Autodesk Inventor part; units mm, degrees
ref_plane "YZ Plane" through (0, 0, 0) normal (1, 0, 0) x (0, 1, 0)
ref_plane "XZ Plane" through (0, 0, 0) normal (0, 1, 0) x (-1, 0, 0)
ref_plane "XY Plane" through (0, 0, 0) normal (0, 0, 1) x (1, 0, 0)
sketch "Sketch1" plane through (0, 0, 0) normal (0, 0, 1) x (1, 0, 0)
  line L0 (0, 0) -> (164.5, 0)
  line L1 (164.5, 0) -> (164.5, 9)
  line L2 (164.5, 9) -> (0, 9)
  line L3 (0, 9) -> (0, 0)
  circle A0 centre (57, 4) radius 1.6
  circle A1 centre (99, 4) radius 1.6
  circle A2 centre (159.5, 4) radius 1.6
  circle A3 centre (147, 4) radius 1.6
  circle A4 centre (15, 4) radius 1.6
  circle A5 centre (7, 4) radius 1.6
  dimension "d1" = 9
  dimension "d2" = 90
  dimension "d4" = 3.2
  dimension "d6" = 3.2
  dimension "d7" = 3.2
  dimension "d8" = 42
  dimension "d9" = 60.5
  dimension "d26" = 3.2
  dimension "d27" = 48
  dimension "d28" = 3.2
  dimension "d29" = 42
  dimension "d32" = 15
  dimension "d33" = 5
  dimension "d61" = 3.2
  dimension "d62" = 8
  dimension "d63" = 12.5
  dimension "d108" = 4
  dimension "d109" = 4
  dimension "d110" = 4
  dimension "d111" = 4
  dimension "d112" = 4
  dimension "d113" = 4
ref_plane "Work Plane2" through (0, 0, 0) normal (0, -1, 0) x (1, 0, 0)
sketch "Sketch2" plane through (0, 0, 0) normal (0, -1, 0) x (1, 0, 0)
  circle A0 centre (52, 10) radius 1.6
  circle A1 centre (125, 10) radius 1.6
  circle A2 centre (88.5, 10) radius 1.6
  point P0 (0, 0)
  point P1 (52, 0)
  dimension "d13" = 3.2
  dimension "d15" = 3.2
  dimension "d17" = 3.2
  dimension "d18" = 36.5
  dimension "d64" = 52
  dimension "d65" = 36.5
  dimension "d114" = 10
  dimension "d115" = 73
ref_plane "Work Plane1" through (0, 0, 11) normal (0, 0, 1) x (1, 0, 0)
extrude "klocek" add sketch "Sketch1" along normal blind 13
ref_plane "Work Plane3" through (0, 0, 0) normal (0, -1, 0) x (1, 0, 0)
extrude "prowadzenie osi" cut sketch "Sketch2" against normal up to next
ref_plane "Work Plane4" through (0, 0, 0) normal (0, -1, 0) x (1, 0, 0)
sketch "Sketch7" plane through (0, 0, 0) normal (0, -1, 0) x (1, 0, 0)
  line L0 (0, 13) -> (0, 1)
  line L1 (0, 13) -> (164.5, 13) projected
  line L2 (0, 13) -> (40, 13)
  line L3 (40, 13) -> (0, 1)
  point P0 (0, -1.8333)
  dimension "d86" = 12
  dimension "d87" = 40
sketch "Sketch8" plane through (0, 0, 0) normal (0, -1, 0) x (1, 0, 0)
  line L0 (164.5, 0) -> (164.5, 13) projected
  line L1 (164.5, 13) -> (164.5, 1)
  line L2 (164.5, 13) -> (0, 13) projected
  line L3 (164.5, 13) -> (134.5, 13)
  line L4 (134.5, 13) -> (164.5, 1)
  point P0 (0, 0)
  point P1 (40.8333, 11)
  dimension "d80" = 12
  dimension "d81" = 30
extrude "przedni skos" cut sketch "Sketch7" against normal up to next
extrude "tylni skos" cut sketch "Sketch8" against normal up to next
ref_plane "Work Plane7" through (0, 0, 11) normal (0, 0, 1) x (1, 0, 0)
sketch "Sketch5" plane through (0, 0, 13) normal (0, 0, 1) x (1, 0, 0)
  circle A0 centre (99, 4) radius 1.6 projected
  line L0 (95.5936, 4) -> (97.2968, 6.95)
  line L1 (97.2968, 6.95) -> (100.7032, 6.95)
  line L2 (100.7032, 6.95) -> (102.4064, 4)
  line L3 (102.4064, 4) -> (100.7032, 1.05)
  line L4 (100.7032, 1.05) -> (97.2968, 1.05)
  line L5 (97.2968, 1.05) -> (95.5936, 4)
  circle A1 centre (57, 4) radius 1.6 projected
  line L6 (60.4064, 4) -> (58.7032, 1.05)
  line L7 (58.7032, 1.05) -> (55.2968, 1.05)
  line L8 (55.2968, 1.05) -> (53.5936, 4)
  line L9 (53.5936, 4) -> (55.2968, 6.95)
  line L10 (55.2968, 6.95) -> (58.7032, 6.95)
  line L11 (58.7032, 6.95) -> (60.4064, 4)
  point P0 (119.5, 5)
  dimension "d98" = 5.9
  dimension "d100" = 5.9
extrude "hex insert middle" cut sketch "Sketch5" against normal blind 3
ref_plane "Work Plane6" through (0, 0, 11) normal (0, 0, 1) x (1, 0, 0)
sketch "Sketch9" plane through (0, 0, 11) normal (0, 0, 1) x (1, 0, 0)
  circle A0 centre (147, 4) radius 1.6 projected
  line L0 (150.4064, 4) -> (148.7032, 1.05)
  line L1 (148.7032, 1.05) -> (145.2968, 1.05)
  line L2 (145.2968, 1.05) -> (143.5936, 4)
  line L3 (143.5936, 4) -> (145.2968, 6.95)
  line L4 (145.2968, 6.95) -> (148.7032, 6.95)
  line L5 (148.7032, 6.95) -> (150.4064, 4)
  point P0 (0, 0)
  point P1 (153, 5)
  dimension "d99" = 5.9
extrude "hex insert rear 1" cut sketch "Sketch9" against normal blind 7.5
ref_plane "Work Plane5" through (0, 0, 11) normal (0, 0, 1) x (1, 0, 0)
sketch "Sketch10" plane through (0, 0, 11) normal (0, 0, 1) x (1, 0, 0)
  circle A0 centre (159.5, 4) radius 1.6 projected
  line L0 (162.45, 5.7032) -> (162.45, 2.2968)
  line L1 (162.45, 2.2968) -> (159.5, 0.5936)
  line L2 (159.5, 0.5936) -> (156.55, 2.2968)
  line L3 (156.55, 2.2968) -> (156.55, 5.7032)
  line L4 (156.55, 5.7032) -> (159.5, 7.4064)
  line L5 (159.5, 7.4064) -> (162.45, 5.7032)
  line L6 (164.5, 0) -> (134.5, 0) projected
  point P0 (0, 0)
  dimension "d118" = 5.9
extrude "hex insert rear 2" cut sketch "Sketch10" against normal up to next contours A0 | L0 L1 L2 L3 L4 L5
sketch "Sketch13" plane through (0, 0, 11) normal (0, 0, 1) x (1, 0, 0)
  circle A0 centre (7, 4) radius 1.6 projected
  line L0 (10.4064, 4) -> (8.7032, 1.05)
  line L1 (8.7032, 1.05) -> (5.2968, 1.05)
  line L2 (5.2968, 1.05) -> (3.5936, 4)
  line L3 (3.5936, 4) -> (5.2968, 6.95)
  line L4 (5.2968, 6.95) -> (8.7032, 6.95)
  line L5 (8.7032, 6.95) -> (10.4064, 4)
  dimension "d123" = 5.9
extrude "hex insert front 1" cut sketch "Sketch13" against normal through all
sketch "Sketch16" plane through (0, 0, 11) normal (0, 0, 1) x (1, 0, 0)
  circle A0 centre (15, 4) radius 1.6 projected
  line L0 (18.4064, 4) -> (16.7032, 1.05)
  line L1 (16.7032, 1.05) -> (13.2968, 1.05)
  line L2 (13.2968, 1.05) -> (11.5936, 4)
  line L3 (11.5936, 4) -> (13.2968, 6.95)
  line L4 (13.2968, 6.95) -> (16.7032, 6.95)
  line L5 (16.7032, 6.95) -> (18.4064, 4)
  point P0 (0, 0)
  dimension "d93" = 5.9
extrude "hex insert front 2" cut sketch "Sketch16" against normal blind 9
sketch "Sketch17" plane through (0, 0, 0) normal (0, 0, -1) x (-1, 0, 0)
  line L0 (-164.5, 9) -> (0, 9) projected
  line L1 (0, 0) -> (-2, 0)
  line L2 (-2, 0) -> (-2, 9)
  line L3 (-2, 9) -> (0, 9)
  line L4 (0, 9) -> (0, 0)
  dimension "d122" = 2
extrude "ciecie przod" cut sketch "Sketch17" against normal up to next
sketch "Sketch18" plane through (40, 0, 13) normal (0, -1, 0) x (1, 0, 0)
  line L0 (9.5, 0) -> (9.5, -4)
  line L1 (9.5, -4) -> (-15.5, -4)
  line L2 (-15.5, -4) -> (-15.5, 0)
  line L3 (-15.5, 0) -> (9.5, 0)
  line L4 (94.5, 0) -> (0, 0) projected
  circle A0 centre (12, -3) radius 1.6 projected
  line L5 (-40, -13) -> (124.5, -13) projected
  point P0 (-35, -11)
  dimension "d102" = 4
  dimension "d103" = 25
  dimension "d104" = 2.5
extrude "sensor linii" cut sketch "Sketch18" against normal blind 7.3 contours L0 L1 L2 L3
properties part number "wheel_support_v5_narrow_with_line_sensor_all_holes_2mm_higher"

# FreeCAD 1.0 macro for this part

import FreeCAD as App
import Part
import Sketcher
from FreeCAD import Vector
Q = App.Units.Quantity


def add_polygon(sketch, points):
    """Adds a closed chain of lines whose ends are joined by coincident constraints."""
    first, n = sketch.GeometryCount, len(points)
    for a, b in zip(points, points[1:] + points[:1]):
        sketch.addGeometry(Part.LineSegment(App.Vector(*a, 0), App.Vector(*b, 0)), False)
    for i in range(n):
        sketch.addConstraint(Sketcher.Constraint("Coincident", first + i, 2, first + (i + 1) % n, 1))

doc = App.newDocument("Part")
body = doc.addObject("PartDesign::Body", "Body")

# Sketch on XY plane
sketch1 = doc.addObject("Sketcher::SketchObject", "Sketch")
body.addObject(sketch1)
sketch1.AttachmentSupport = (doc.XY_Plane, [""])
sketch1.MapMode = "FlatFace"
add_polygon(sketch1, [(0, 9), (0, 0), (164.5, 0), (164.5, 9)])  # lines 0-3
sketch1.addGeometry(Part.Circle(Vector(7, 4, 0), Vector(0, 0, 1), 1.6), False)  # 4
sketch1.addGeometry(Part.Circle(Vector(15, 4, 0), Vector(0, 0, 1), 1.6), False)  # 5
sketch1.addGeometry(Part.Circle(Vector(57, 4, 0), Vector(0, 0, 1), 1.6), False)  # 6
sketch1.addGeometry(Part.Circle(Vector(99, 4, 0), Vector(0, 0, 1), 1.6), False)  # 7
sketch1.addGeometry(Part.Circle(Vector(147, 4, 0), Vector(0, 0, 1), 1.6), False)  # 8
sketch1.addGeometry(Part.Circle(Vector(159.5, 4, 0), Vector(0, 0, 1), 1.6), False)  # 9
sketch1.addConstraint(Sketcher.Constraint("Vertical", 0))
sketch1.addConstraint(Sketcher.Constraint("Horizontal", 1))
sketch1.addConstraint(Sketcher.Constraint("Vertical", 2))
sketch1.addConstraint(Sketcher.Constraint("Horizontal", 3))
sketch1.addConstraint(Sketcher.Constraint("Coincident", 0, 2, -1, 1))
sketch1.addConstraint(Sketcher.Constraint("Equal", 4, 5))
sketch1.addConstraint(Sketcher.Constraint("Equal", 5, 6))
sketch1.addConstraint(Sketcher.Constraint("Equal", 6, 7))
sketch1.addConstraint(Sketcher.Constraint("Equal", 7, 8))
sketch1.addConstraint(Sketcher.Constraint("Equal", 8, 9))
sketch1.addConstraint(Sketcher.Constraint("Horizontal", 4, 3, 5, 3))
sketch1.addConstraint(Sketcher.Constraint("Horizontal", 5, 3, 6, 3))
sketch1.addConstraint(Sketcher.Constraint("Horizontal", 6, 3, 7, 3))
sketch1.addConstraint(Sketcher.Constraint("Horizontal", 7, 3, 8, 3))
sketch1.addConstraint(Sketcher.Constraint("Horizontal", 8, 3, 9, 3))
sketch1.addConstraint(Sketcher.Constraint("Diameter", 4, 3.2))
sketch1.addConstraint(Sketcher.Constraint("DistanceY", 0, 2, 0, 1, 9.0))
sketch1.addConstraint(Sketcher.Constraint("DistanceY", -1, 1, 4, 3, 4.0))
sketch1.addConstraint(Sketcher.Constraint("DistanceX", -1, 1, 5, 3, 15.0))
sketch1.addConstraint(Sketcher.Constraint("DistanceX", 4, 3, 5, 3, 8.0))
sketch1.addConstraint(Sketcher.Constraint("DistanceX", 5, 3, 6, 3, 42.0))
sketch1.addConstraint(Sketcher.Constraint("DistanceX", 6, 3, 7, 3, 42.0))
sketch1.addConstraint(Sketcher.Constraint("DistanceX", 7, 3, 8, 3, 48.0))
sketch1.addConstraint(Sketcher.Constraint("DistanceX", 9, 3, 1, 2, 5.0))
sketch1.addConstraint(Sketcher.Constraint("DistanceX", 8, 3, 9, 3, 12.5))
pad1 = doc.addObject("PartDesign::Pad", "Pad")
body.addObject(pad1)
pad1.Profile = sketch1
pad1.Length = 13

# Sketch on XZ plane
sketch2 = doc.addObject("Sketcher::SketchObject", "Sketch001")
body.addObject(sketch2)
sketch2.AttachmentSupport = (doc.XZ_Plane, [""])
sketch2.MapMode = "FlatFace"
sketch2.addGeometry(Part.Circle(Vector(52, 10, 0), Vector(0, 0, 1), 1.6), False)
sketch2.addGeometry(Part.Circle(Vector(125, 10, 0), Vector(0, 0, 1), 1.6), False)
sketch2.addGeometry(Part.Circle(Vector(88.5, 10, 0), Vector(0, 0, 1), 1.6), False)
sketch2.addConstraint(Sketcher.Constraint("Equal", 0, 1))
sketch2.addConstraint(Sketcher.Constraint("Equal", 1, 2))
sketch2.addConstraint(Sketcher.Constraint("Horizontal", 0, 3, 1, 3))
sketch2.addConstraint(Sketcher.Constraint("Horizontal", 1, 3, 2, 3))
sketch2.addConstraint(Sketcher.Constraint("Diameter", 0, 3.2))
sketch2.addConstraint(Sketcher.Constraint("DistanceX", -1, 1, 0, 3, 52.0))
sketch2.addConstraint(Sketcher.Constraint("DistanceY", -1, 1, 0, 3, 10.0))
sketch2.addConstraint(Sketcher.Constraint("DistanceX", 0, 3, 1, 3, 73.0))
sketch2.addConstraint(Sketcher.Constraint("DistanceX", 0, 3, 2, 3, 36.5))
pocket1 = doc.addObject("PartDesign::Pocket", "Pocket")
body.addObject(pocket1)
pocket1.Profile = sketch2
pocket1.Type = "UpToFirst"

# Sketch on XZ plane
sketch3 = doc.addObject("Sketcher::SketchObject", "Sketch002")
body.addObject(sketch3)
sketch3.AttachmentSupport = (doc.XZ_Plane, [""])
sketch3.MapMode = "FlatFace"
add_polygon(sketch3, [(40, 13), (0, 13), (0, 1)])  # lines 0-2
sketch3.addConstraint(Sketcher.Constraint("Horizontal", 0))
sketch3.addConstraint(Sketcher.Constraint("Vertical", 1))
sketch3.addConstraint(Sketcher.Constraint("PointOnObject", 0, 2, -2))
sketch3.addConstraint(Sketcher.Constraint("DistanceX", 0, 2, 0, 1, 40.0))
sketch3.addConstraint(Sketcher.Constraint("DistanceY", 1, 2, 1, 1, 12.0))
sketch3.addConstraint(Sketcher.Constraint("DistanceY", -1, 1, 0, 2, 13.0))
pocket2 = doc.addObject("PartDesign::Pocket", "Pocket001")
body.addObject(pocket2)
pocket2.Profile = sketch3
pocket2.Type = "UpToFirst"

# Sketch on XZ plane
sketch4 = doc.addObject("Sketcher::SketchObject", "Sketch003")
body.addObject(sketch4)
sketch4.AttachmentSupport = (doc.XZ_Plane, [""])
sketch4.MapMode = "FlatFace"
add_polygon(sketch4, [(134, 13), (164, 1), (164, 13)])  # lines 0-2
sketch4.addConstraint(Sketcher.Constraint("Vertical", 1))
sketch4.addConstraint(Sketcher.Constraint("Horizontal", 2))
sketch4.addConstraint(Sketcher.Constraint("DistanceX", 2, 2, 2, 1, 30.0))
sketch4.addConstraint(Sketcher.Constraint("DistanceY", 1, 1, 1, 2, 12.0))
sketch4.addConstraint(Sketcher.Constraint("DistanceY", -1, 1, 0, 2, 1.0))
sketch4.addConstraint(Sketcher.Constraint("DistanceX", -1, 1, 0, 2, 164.5))
pocket3 = doc.addObject("PartDesign::Pocket", "Pocket002")
body.addObject(pocket3)
pocket3.Profile = sketch4
pocket3.Type = "UpToFirst"

# Sketch on XY plane
sketch5 = doc.addObject("Sketcher::SketchObject", "Sketch004")
body.addObject(sketch5)
sketch5.AttachmentSupport = (doc.XY_Plane, [""])
sketch5.MapMode = "FlatFace"
sketch5.AttachmentOffset = App.Placement(Vector(0, 0, 13), App.Rotation())
add_polygon(sketch5, [(97.3, 7), (95.6, 4), (97.3, 1.1), (100.7, 1.1), (102.4, 4), (100.7, 7)])  # lines 0-5
sketch5.addGeometry(Part.Circle(Vector(99, 4, 0), Vector(0, 0, 1), 1.6), False)  # 6
add_polygon(sketch5, [(58.7, 1.1), (60.4, 4), (58.7, 7), (55.3, 7), (53.6, 4), (55.3, 1.1)])  # lines 7-12
sketch5.addGeometry(Part.Circle(Vector(57, 4, 0), Vector(0, 0, 1), 1.6), False)  # 13
sketch5.addConstraint(Sketcher.Constraint("Horizontal", 2))
sketch5.addConstraint(Sketcher.Constraint("Horizontal", 5))
sketch5.addConstraint(Sketcher.Constraint("Horizontal", 9))
sketch5.addConstraint(Sketcher.Constraint("Horizontal", 12))
sketch5.addConstraint(Sketcher.Constraint("Equal", 6, 13))
sketch5.addConstraint(Sketcher.Constraint("Parallel", 0, 3))
sketch5.addConstraint(Sketcher.Constraint("Parallel", 1, 4))
sketch5.addConstraint(Sketcher.Constraint("Parallel", 3, 7))
sketch5.addConstraint(Sketcher.Constraint("Parallel", 4, 8))
sketch5.addConstraint(Sketcher.Constraint("Parallel", 7, 10))
sketch5.addConstraint(Sketcher.Constraint("Parallel", 8, 11))
sketch5.addConstraint(Sketcher.Constraint("Horizontal", 6, 3, 13, 3))
sketch5.addConstraint(Sketcher.Constraint("Horizontal", 13, 3, 0, 2))
sketch5.addConstraint(Sketcher.Constraint("Horizontal", 0, 2, 3, 2))
sketch5.addConstraint(Sketcher.Constraint("Horizontal", 3, 2, 7, 2))
sketch5.addConstraint(Sketcher.Constraint("Horizontal", 5, 2, 8, 2))
sketch5.addConstraint(Sketcher.Constraint("Horizontal", 7, 2, 10, 2))
sketch5.addConstraint(Sketcher.Constraint("Horizontal", 2, 2, 11, 2))
sketch5.addConstraint(Sketcher.Constraint("Vertical", 2, 2, 4, 2))
sketch5.addConstraint(Sketcher.Constraint("Vertical", 1, 2, 5, 2))
sketch5.addConstraint(Sketcher.Constraint("Equal", 5, 9))
sketch5.addConstraint(Sketcher.Constraint("Diameter", 6, 3.2))
sketch5.addConstraint(Sketcher.Constraint("DistanceY", 2, 2, 4, 2, 5.9))
sketch5.addConstraint(Sketcher.Constraint("Angle", 0, Q("-120.0002 deg")))
sketch5.addConstraint(Sketcher.Constraint("DistanceX", -1, 1, 6, 3, 99.0))
sketch5.addConstraint(Sketcher.Constraint("DistanceY", -1, 1, 6, 3, 4.0))
sketch5.addConstraint(Sketcher.Constraint("DistanceX", -1, 1, 13, 3, 57.0))
sketch5.addConstraint(Sketcher.Constraint("DistanceX", 9, 2, 5, 2, 42.0))
sketch5.addConstraint(Sketcher.Constraint("DistanceX", 2, 1, 2, 2, 3.4064))
sketch5.addConstraint(Sketcher.Constraint("DistanceX", -1, 1, 0, 2, 95.5936))
pocket4 = doc.addObject("PartDesign::Pocket", "Pocket003")
body.addObject(pocket4)
pocket4.Profile = sketch5
pocket4.Length = 3

# Sketch on XY plane
sketch6 = doc.addObject("Sketcher::SketchObject", "Sketch005")
body.addObject(sketch6)
sketch6.AttachmentSupport = (doc.XY_Plane, [""])
sketch6.MapMode = "FlatFace"
sketch6.AttachmentOffset = App.Placement(Vector(0, 0, 11), App.Rotation())
add_polygon(sketch6, [(148.7, 1.1), (150.4, 4), (148.7, 7), (145.3, 7), (143.6, 4), (145.3, 1.1)])  # lines 0-5
sketch6.addGeometry(Part.Circle(Vector(147, 4, 0), Vector(0, 0, 1), 1.6), False)  # 6
sketch6.addConstraint(Sketcher.Constraint("Horizontal", 2))
sketch6.addConstraint(Sketcher.Constraint("Horizontal", 5))
sketch6.addConstraint(Sketcher.Constraint("Parallel", 0, 3))
sketch6.addConstraint(Sketcher.Constraint("Parallel", 1, 4))
sketch6.addConstraint(Sketcher.Constraint("Horizontal", 6, 3, 0, 2))
sketch6.addConstraint(Sketcher.Constraint("Horizontal", 0, 2, 3, 2))
sketch6.addConstraint(Sketcher.Constraint("Vertical", 2, 2, 4, 2))
sketch6.addConstraint(Sketcher.Constraint("Vertical", 1, 2, 5, 2))
sketch6.addConstraint(Sketcher.Constraint("Diameter", 6, 3.2))
sketch6.addConstraint(Sketcher.Constraint("DistanceY", 4, 2, 2, 2, 5.9))
sketch6.addConstraint(Sketcher.Constraint("Angle", 0, Q("59.9998 deg")))
sketch6.addConstraint(Sketcher.Constraint("DistanceX", -1, 1, 6, 3, 147.0))
sketch6.addConstraint(Sketcher.Constraint("DistanceY", -1, 1, 6, 3, 4.0))
sketch6.addConstraint(Sketcher.Constraint("DistanceX", 2, 2, 2, 1, 3.4064))
sketch6.addConstraint(Sketcher.Constraint("DistanceX", -1, 1, 0, 2, 150.4064))
pocket5 = doc.addObject("PartDesign::Pocket", "Pocket004")
body.addObject(pocket5)
pocket5.Profile = sketch6
pocket5.Length = 7.5

# Sketch on XY plane
sketch7 = doc.addObject("Sketcher::SketchObject", "Sketch006")
body.addObject(sketch7)
sketch7.AttachmentSupport = (doc.XY_Plane, [""])
sketch7.MapMode = "FlatFace"
sketch7.AttachmentOffset = App.Placement(Vector(0, 0, 11), App.Rotation())
add_polygon(sketch7, [(162.4, 2.3), (162.4, 5.7), (159.5, 7.4), (156.6, 5.7), (156.6, 2.3), (159.5, 0.6)])  # lines 0-5
sketch7.addConstraint(Sketcher.Constraint("Vertical", 0))
sketch7.addConstraint(Sketcher.Constraint("Vertical", 3))
sketch7.addConstraint(Sketcher.Constraint("Parallel", 1, 4))
sketch7.addConstraint(Sketcher.Constraint("Parallel", 2, 5))
sketch7.addConstraint(Sketcher.Constraint("Horizontal", 0, 2, 2, 2))
sketch7.addConstraint(Sketcher.Constraint("Horizontal", 3, 2, 5, 2))
sketch7.addConstraint(Sketcher.Constraint("Vertical", 1, 2, 4, 2))
sketch7.addConstraint(Sketcher.Constraint("DistanceX", 2, 2, 0, 2, 5.9))
sketch7.addConstraint(Sketcher.Constraint("Angle", 1, Q("149.9998 deg")))
sketch7.addConstraint(Sketcher.Constraint("DistanceX", -1, 1, 1, 2, 159.5))
sketch7.addConstraint(Sketcher.Constraint("DistanceY", 0, 1, 0, 2, 3.4064))
sketch7.addConstraint(Sketcher.Constraint("DistanceY", -1, 1, 0, 2, 5.7032))
pocket6 = doc.addObject("PartDesign::Pocket", "Pocket005")
body.addObject(pocket6)
pocket6.Profile = sketch7
pocket6.Length = 11

# Sketch on XY plane
sketch8 = doc.addObject("Sketcher::SketchObject", "Sketch007")
body.addObject(sketch8)
sketch8.AttachmentSupport = (doc.XY_Plane, [""])
sketch8.MapMode = "FlatFace"
sketch8.AttachmentOffset = App.Placement(Vector(0, 0, 11), App.Rotation())
add_polygon(sketch8, [(8.7, 1.1), (10.4, 4), (8.7, 7), (5.3, 7), (3.6, 4), (5.3, 1.1)])  # lines 0-5
sketch8.addGeometry(Part.Circle(Vector(7, 4, 0), Vector(0, 0, 1), 1.6), False)  # 6
sketch8.addConstraint(Sketcher.Constraint("Horizontal", 2))
sketch8.addConstraint(Sketcher.Constraint("Horizontal", 5))
sketch8.addConstraint(Sketcher.Constraint("Parallel", 0, 3))
sketch8.addConstraint(Sketcher.Constraint("Parallel", 1, 4))
sketch8.addConstraint(Sketcher.Constraint("Horizontal", 6, 3, 0, 2))
sketch8.addConstraint(Sketcher.Constraint("Horizontal", 0, 2, 3, 2))
sketch8.addConstraint(Sketcher.Constraint("Vertical", 2, 2, 4, 2))
sketch8.addConstraint(Sketcher.Constraint("Vertical", 1, 2, 5, 2))
sketch8.addConstraint(Sketcher.Constraint("Diameter", 6, 3.2))
sketch8.addConstraint(Sketcher.Constraint("DistanceY", 4, 2, 2, 2, 5.9))
sketch8.addConstraint(Sketcher.Constraint("Angle", 0, Q("59.9998 deg")))
sketch8.addConstraint(Sketcher.Constraint("DistanceX", -1, 1, 6, 3, 7.0))
sketch8.addConstraint(Sketcher.Constraint("DistanceY", -1, 1, 6, 3, 4.0))
sketch8.addConstraint(Sketcher.Constraint("DistanceX", 2, 2, 2, 1, 3.4064))
sketch8.addConstraint(Sketcher.Constraint("DistanceX", -1, 1, 0, 2, 10.4064))
pocket7 = doc.addObject("PartDesign::Pocket", "Pocket006")
body.addObject(pocket7)
pocket7.Profile = sketch8
pocket7.Type = "ThroughAll"

# Sketch on XY plane
sketch9 = doc.addObject("Sketcher::SketchObject", "Sketch008")
body.addObject(sketch9)
sketch9.AttachmentSupport = (doc.XY_Plane, [""])
sketch9.MapMode = "FlatFace"
sketch9.AttachmentOffset = App.Placement(Vector(0, 0, 11), App.Rotation())
add_polygon(sketch9, [(16.7, 1.1), (18.4, 4), (16.7, 7), (13.3, 7), (11.6, 4), (13.3, 1.1)])  # lines 0-5
sketch9.addGeometry(Part.Circle(Vector(15, 4, 0), Vector(0, 0, 1), 1.6), False)  # 6
sketch9.addConstraint(Sketcher.Constraint("Horizontal", 2))
sketch9.addConstraint(Sketcher.Constraint("Horizontal", 5))
sketch9.addConstraint(Sketcher.Constraint("Parallel", 0, 3))
sketch9.addConstraint(Sketcher.Constraint("Parallel", 1, 4))
sketch9.addConstraint(Sketcher.Constraint("Horizontal", 6, 3, 0, 2))
sketch9.addConstraint(Sketcher.Constraint("Horizontal", 0, 2, 3, 2))
sketch9.addConstraint(Sketcher.Constraint("Vertical", 2, 2, 4, 2))
sketch9.addConstraint(Sketcher.Constraint("Vertical", 1, 2, 5, 2))
sketch9.addConstraint(Sketcher.Constraint("Diameter", 6, 3.2))
sketch9.addConstraint(Sketcher.Constraint("DistanceY", 4, 2, 2, 2, 5.9))
sketch9.addConstraint(Sketcher.Constraint("Angle", 0, Q("59.9998 deg")))
sketch9.addConstraint(Sketcher.Constraint("DistanceX", -1, 1, 6, 3, 15.0))
sketch9.addConstraint(Sketcher.Constraint("DistanceY", -1, 1, 6, 3, 4.0))
sketch9.addConstraint(Sketcher.Constraint("DistanceX", 2, 2, 2, 1, 3.4064))
sketch9.addConstraint(Sketcher.Constraint("DistanceX", -1, 1, 0, 2, 18.4064))
pocket8 = doc.addObject("PartDesign::Pocket", "Pocket007")
body.addObject(pocket8)
pocket8.Profile = sketch9
pocket8.Length = 9

# Sketch on XY plane
sketch10 = doc.addObject("Sketcher::SketchObject", "Sketch009")
body.addObject(sketch10)
sketch10.AttachmentSupport = (doc.XY_Plane, [""])
sketch10.MapMode = "FlatFace"
add_polygon(sketch10, [(0, 9), (2, 9), (2, 0), (0, 0)])  # lines 0-3
sketch10.addConstraint(Sketcher.Constraint("Horizontal", 0))
sketch10.addConstraint(Sketcher.Constraint("Vertical", 1))
sketch10.addConstraint(Sketcher.Constraint("Horizontal", 2))
sketch10.addConstraint(Sketcher.Constraint("Vertical", 3))
sketch10.addConstraint(Sketcher.Constraint("Coincident", 2, 2, -1, 1))
sketch10.addConstraint(Sketcher.Constraint("DistanceX", 0, 1, 0, 2, 2.0))
sketch10.addConstraint(Sketcher.Constraint("DistanceY", 1, 2, 1, 1, 9.0))
pocket9 = doc.addObject("PartDesign::Pocket", "Pocket008")
body.addObject(pocket9)
pocket9.Profile = sketch10
pocket9.Type = "UpToFirst"
pocket9.Reversed = True

# Sketch on XZ plane
sketch11 = doc.addObject("Sketcher::SketchObject", "Sketch010")
body.addObject(sketch11)
sketch11.AttachmentSupport = (doc.XZ_Plane, [""])
sketch11.MapMode = "FlatFace"
add_polygon(sketch11, [(49.5, 9), (49.5, 13), (24.5, 13), (24.5, 9)])  # lines 0-3
sketch11.addConstraint(Sketcher.Constraint("Vertical", 0))
sketch11.addConstraint(Sketcher.Constraint("Horizontal", 1))
sketch11.addConstraint(Sketcher.Constraint("Vertical", 2))
sketch11.addConstraint(Sketcher.Constraint("Horizontal", 3))
sketch11.addConstraint(Sketcher.Constraint("DistanceX", 1, 2, 1, 1, 25.0))
sketch11.addConstraint(Sketcher.Constraint("DistanceY", 0, 1, 0, 2, 4.0))
sketch11.addConstraint(Sketcher.Constraint("DistanceY", -1, 1, 0, 2, 13.0))
sketch11.addConstraint(Sketcher.Constraint("DistanceX", -1, 1, 0, 2, 49.5))
pocket10 = doc.addObject("PartDesign::Pocket", "Pocket009")
body.addObject(pocket10)
pocket10.Profile = sketch11
pocket10.Length = 7.3

doc.recompute()
